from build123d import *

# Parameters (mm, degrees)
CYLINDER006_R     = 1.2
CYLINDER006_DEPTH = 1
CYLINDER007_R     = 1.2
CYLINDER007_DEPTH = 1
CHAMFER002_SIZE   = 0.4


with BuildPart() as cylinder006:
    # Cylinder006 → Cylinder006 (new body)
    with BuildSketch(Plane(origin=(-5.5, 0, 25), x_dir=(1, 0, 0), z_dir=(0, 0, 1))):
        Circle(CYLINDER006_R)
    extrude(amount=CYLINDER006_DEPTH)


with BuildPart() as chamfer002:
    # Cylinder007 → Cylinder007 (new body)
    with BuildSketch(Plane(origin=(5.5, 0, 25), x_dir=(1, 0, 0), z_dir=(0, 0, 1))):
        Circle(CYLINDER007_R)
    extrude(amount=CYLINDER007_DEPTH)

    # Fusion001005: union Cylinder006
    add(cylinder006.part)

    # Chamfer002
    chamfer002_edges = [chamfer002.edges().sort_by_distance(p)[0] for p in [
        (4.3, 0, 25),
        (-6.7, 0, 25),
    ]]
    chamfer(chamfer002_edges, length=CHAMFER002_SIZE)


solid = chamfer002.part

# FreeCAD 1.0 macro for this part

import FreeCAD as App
import Part
import Sketcher

V = App.Vector
Q = App.Units.Quantity


def edges_at(feature, points):
    """Names of the edges that pass closest to the given points."""
    edges = feature.Shape.Edges
    near = lambda p: min(range(len(edges)), key=lambda i: edges[i].distToShape(Part.Vertex(*p))[0])
    return sorted({f"Edge{near(p) + 1}" for p in points})

doc = App.newDocument("Part")
body = doc.addObject("PartDesign::Body", "Body")

# Sketch on XY plane
sketch1 = body.newObject("Sketcher::SketchObject", "Sketch")
sketch1.AttachmentSupport = (doc.getObject("XY_Plane"), [""])
sketch1.MapMode = "FlatFace"
sketch1.AttachmentOffset = App.Placement(V(0, 0, 25), App.Rotation())
sketch1.addGeometry(Part.Circle(V(-5.5, 0, 0), V(0, 0, 1), 1.2), False)
sketch1.addConstraint([
    Sketcher.Constraint("PointOnObject", 0, 3, -1),
    Sketcher.Constraint("Diameter", 0, Q("2.4 mm")),
    Sketcher.Constraint("DistanceX", 0, 3, -1, 1, Q("5.5 mm")),
])
pad1 = body.newObject("PartDesign::Pad", "Pad")
pad1.Profile = sketch1
pad1.Length = 1
body2 = doc.addObject("PartDesign::Body", "Body001")
body2.AllowCompound = True

# Sketch on XY plane
sketch2 = body2.newObject("Sketcher::SketchObject", "Sketch001")
sketch2.AttachmentSupport = (doc.getObject("XY_Plane001"), [""])
sketch2.MapMode = "FlatFace"
sketch2.AttachmentOffset = App.Placement(V(0, 0, 25), App.Rotation())
sketch2.addGeometry(Part.Circle(V(5.5, 0, 0), V(0, 0, 1), 1.2), False)
sketch2.addConstraint([
    Sketcher.Constraint("PointOnObject", 0, 3, -1),
    Sketcher.Constraint("Diameter", 0, Q("2.4 mm")),
    Sketcher.Constraint("DistanceX", -1, 1, 0, 3, Q("5.5 mm")),
])
pad2 = body2.newObject("PartDesign::Pad", "Pad001")
pad2.Profile = sketch2
pad2.Length = 1
doc.recompute()

boolean = body2.newObject("PartDesign::Boolean", "Boolean")
boolean.Type = "Fuse"
boolean.addObjects([body])
doc.recompute()

chamfer = body2.newObject("PartDesign::Chamfer", "Chamfer")
chamfer.Base = (boolean, edges_at(boolean, [(4.3, 0, 25), (-6.7, 0, 25)]))
chamfer.Size = 0.4

doc.recompute()
